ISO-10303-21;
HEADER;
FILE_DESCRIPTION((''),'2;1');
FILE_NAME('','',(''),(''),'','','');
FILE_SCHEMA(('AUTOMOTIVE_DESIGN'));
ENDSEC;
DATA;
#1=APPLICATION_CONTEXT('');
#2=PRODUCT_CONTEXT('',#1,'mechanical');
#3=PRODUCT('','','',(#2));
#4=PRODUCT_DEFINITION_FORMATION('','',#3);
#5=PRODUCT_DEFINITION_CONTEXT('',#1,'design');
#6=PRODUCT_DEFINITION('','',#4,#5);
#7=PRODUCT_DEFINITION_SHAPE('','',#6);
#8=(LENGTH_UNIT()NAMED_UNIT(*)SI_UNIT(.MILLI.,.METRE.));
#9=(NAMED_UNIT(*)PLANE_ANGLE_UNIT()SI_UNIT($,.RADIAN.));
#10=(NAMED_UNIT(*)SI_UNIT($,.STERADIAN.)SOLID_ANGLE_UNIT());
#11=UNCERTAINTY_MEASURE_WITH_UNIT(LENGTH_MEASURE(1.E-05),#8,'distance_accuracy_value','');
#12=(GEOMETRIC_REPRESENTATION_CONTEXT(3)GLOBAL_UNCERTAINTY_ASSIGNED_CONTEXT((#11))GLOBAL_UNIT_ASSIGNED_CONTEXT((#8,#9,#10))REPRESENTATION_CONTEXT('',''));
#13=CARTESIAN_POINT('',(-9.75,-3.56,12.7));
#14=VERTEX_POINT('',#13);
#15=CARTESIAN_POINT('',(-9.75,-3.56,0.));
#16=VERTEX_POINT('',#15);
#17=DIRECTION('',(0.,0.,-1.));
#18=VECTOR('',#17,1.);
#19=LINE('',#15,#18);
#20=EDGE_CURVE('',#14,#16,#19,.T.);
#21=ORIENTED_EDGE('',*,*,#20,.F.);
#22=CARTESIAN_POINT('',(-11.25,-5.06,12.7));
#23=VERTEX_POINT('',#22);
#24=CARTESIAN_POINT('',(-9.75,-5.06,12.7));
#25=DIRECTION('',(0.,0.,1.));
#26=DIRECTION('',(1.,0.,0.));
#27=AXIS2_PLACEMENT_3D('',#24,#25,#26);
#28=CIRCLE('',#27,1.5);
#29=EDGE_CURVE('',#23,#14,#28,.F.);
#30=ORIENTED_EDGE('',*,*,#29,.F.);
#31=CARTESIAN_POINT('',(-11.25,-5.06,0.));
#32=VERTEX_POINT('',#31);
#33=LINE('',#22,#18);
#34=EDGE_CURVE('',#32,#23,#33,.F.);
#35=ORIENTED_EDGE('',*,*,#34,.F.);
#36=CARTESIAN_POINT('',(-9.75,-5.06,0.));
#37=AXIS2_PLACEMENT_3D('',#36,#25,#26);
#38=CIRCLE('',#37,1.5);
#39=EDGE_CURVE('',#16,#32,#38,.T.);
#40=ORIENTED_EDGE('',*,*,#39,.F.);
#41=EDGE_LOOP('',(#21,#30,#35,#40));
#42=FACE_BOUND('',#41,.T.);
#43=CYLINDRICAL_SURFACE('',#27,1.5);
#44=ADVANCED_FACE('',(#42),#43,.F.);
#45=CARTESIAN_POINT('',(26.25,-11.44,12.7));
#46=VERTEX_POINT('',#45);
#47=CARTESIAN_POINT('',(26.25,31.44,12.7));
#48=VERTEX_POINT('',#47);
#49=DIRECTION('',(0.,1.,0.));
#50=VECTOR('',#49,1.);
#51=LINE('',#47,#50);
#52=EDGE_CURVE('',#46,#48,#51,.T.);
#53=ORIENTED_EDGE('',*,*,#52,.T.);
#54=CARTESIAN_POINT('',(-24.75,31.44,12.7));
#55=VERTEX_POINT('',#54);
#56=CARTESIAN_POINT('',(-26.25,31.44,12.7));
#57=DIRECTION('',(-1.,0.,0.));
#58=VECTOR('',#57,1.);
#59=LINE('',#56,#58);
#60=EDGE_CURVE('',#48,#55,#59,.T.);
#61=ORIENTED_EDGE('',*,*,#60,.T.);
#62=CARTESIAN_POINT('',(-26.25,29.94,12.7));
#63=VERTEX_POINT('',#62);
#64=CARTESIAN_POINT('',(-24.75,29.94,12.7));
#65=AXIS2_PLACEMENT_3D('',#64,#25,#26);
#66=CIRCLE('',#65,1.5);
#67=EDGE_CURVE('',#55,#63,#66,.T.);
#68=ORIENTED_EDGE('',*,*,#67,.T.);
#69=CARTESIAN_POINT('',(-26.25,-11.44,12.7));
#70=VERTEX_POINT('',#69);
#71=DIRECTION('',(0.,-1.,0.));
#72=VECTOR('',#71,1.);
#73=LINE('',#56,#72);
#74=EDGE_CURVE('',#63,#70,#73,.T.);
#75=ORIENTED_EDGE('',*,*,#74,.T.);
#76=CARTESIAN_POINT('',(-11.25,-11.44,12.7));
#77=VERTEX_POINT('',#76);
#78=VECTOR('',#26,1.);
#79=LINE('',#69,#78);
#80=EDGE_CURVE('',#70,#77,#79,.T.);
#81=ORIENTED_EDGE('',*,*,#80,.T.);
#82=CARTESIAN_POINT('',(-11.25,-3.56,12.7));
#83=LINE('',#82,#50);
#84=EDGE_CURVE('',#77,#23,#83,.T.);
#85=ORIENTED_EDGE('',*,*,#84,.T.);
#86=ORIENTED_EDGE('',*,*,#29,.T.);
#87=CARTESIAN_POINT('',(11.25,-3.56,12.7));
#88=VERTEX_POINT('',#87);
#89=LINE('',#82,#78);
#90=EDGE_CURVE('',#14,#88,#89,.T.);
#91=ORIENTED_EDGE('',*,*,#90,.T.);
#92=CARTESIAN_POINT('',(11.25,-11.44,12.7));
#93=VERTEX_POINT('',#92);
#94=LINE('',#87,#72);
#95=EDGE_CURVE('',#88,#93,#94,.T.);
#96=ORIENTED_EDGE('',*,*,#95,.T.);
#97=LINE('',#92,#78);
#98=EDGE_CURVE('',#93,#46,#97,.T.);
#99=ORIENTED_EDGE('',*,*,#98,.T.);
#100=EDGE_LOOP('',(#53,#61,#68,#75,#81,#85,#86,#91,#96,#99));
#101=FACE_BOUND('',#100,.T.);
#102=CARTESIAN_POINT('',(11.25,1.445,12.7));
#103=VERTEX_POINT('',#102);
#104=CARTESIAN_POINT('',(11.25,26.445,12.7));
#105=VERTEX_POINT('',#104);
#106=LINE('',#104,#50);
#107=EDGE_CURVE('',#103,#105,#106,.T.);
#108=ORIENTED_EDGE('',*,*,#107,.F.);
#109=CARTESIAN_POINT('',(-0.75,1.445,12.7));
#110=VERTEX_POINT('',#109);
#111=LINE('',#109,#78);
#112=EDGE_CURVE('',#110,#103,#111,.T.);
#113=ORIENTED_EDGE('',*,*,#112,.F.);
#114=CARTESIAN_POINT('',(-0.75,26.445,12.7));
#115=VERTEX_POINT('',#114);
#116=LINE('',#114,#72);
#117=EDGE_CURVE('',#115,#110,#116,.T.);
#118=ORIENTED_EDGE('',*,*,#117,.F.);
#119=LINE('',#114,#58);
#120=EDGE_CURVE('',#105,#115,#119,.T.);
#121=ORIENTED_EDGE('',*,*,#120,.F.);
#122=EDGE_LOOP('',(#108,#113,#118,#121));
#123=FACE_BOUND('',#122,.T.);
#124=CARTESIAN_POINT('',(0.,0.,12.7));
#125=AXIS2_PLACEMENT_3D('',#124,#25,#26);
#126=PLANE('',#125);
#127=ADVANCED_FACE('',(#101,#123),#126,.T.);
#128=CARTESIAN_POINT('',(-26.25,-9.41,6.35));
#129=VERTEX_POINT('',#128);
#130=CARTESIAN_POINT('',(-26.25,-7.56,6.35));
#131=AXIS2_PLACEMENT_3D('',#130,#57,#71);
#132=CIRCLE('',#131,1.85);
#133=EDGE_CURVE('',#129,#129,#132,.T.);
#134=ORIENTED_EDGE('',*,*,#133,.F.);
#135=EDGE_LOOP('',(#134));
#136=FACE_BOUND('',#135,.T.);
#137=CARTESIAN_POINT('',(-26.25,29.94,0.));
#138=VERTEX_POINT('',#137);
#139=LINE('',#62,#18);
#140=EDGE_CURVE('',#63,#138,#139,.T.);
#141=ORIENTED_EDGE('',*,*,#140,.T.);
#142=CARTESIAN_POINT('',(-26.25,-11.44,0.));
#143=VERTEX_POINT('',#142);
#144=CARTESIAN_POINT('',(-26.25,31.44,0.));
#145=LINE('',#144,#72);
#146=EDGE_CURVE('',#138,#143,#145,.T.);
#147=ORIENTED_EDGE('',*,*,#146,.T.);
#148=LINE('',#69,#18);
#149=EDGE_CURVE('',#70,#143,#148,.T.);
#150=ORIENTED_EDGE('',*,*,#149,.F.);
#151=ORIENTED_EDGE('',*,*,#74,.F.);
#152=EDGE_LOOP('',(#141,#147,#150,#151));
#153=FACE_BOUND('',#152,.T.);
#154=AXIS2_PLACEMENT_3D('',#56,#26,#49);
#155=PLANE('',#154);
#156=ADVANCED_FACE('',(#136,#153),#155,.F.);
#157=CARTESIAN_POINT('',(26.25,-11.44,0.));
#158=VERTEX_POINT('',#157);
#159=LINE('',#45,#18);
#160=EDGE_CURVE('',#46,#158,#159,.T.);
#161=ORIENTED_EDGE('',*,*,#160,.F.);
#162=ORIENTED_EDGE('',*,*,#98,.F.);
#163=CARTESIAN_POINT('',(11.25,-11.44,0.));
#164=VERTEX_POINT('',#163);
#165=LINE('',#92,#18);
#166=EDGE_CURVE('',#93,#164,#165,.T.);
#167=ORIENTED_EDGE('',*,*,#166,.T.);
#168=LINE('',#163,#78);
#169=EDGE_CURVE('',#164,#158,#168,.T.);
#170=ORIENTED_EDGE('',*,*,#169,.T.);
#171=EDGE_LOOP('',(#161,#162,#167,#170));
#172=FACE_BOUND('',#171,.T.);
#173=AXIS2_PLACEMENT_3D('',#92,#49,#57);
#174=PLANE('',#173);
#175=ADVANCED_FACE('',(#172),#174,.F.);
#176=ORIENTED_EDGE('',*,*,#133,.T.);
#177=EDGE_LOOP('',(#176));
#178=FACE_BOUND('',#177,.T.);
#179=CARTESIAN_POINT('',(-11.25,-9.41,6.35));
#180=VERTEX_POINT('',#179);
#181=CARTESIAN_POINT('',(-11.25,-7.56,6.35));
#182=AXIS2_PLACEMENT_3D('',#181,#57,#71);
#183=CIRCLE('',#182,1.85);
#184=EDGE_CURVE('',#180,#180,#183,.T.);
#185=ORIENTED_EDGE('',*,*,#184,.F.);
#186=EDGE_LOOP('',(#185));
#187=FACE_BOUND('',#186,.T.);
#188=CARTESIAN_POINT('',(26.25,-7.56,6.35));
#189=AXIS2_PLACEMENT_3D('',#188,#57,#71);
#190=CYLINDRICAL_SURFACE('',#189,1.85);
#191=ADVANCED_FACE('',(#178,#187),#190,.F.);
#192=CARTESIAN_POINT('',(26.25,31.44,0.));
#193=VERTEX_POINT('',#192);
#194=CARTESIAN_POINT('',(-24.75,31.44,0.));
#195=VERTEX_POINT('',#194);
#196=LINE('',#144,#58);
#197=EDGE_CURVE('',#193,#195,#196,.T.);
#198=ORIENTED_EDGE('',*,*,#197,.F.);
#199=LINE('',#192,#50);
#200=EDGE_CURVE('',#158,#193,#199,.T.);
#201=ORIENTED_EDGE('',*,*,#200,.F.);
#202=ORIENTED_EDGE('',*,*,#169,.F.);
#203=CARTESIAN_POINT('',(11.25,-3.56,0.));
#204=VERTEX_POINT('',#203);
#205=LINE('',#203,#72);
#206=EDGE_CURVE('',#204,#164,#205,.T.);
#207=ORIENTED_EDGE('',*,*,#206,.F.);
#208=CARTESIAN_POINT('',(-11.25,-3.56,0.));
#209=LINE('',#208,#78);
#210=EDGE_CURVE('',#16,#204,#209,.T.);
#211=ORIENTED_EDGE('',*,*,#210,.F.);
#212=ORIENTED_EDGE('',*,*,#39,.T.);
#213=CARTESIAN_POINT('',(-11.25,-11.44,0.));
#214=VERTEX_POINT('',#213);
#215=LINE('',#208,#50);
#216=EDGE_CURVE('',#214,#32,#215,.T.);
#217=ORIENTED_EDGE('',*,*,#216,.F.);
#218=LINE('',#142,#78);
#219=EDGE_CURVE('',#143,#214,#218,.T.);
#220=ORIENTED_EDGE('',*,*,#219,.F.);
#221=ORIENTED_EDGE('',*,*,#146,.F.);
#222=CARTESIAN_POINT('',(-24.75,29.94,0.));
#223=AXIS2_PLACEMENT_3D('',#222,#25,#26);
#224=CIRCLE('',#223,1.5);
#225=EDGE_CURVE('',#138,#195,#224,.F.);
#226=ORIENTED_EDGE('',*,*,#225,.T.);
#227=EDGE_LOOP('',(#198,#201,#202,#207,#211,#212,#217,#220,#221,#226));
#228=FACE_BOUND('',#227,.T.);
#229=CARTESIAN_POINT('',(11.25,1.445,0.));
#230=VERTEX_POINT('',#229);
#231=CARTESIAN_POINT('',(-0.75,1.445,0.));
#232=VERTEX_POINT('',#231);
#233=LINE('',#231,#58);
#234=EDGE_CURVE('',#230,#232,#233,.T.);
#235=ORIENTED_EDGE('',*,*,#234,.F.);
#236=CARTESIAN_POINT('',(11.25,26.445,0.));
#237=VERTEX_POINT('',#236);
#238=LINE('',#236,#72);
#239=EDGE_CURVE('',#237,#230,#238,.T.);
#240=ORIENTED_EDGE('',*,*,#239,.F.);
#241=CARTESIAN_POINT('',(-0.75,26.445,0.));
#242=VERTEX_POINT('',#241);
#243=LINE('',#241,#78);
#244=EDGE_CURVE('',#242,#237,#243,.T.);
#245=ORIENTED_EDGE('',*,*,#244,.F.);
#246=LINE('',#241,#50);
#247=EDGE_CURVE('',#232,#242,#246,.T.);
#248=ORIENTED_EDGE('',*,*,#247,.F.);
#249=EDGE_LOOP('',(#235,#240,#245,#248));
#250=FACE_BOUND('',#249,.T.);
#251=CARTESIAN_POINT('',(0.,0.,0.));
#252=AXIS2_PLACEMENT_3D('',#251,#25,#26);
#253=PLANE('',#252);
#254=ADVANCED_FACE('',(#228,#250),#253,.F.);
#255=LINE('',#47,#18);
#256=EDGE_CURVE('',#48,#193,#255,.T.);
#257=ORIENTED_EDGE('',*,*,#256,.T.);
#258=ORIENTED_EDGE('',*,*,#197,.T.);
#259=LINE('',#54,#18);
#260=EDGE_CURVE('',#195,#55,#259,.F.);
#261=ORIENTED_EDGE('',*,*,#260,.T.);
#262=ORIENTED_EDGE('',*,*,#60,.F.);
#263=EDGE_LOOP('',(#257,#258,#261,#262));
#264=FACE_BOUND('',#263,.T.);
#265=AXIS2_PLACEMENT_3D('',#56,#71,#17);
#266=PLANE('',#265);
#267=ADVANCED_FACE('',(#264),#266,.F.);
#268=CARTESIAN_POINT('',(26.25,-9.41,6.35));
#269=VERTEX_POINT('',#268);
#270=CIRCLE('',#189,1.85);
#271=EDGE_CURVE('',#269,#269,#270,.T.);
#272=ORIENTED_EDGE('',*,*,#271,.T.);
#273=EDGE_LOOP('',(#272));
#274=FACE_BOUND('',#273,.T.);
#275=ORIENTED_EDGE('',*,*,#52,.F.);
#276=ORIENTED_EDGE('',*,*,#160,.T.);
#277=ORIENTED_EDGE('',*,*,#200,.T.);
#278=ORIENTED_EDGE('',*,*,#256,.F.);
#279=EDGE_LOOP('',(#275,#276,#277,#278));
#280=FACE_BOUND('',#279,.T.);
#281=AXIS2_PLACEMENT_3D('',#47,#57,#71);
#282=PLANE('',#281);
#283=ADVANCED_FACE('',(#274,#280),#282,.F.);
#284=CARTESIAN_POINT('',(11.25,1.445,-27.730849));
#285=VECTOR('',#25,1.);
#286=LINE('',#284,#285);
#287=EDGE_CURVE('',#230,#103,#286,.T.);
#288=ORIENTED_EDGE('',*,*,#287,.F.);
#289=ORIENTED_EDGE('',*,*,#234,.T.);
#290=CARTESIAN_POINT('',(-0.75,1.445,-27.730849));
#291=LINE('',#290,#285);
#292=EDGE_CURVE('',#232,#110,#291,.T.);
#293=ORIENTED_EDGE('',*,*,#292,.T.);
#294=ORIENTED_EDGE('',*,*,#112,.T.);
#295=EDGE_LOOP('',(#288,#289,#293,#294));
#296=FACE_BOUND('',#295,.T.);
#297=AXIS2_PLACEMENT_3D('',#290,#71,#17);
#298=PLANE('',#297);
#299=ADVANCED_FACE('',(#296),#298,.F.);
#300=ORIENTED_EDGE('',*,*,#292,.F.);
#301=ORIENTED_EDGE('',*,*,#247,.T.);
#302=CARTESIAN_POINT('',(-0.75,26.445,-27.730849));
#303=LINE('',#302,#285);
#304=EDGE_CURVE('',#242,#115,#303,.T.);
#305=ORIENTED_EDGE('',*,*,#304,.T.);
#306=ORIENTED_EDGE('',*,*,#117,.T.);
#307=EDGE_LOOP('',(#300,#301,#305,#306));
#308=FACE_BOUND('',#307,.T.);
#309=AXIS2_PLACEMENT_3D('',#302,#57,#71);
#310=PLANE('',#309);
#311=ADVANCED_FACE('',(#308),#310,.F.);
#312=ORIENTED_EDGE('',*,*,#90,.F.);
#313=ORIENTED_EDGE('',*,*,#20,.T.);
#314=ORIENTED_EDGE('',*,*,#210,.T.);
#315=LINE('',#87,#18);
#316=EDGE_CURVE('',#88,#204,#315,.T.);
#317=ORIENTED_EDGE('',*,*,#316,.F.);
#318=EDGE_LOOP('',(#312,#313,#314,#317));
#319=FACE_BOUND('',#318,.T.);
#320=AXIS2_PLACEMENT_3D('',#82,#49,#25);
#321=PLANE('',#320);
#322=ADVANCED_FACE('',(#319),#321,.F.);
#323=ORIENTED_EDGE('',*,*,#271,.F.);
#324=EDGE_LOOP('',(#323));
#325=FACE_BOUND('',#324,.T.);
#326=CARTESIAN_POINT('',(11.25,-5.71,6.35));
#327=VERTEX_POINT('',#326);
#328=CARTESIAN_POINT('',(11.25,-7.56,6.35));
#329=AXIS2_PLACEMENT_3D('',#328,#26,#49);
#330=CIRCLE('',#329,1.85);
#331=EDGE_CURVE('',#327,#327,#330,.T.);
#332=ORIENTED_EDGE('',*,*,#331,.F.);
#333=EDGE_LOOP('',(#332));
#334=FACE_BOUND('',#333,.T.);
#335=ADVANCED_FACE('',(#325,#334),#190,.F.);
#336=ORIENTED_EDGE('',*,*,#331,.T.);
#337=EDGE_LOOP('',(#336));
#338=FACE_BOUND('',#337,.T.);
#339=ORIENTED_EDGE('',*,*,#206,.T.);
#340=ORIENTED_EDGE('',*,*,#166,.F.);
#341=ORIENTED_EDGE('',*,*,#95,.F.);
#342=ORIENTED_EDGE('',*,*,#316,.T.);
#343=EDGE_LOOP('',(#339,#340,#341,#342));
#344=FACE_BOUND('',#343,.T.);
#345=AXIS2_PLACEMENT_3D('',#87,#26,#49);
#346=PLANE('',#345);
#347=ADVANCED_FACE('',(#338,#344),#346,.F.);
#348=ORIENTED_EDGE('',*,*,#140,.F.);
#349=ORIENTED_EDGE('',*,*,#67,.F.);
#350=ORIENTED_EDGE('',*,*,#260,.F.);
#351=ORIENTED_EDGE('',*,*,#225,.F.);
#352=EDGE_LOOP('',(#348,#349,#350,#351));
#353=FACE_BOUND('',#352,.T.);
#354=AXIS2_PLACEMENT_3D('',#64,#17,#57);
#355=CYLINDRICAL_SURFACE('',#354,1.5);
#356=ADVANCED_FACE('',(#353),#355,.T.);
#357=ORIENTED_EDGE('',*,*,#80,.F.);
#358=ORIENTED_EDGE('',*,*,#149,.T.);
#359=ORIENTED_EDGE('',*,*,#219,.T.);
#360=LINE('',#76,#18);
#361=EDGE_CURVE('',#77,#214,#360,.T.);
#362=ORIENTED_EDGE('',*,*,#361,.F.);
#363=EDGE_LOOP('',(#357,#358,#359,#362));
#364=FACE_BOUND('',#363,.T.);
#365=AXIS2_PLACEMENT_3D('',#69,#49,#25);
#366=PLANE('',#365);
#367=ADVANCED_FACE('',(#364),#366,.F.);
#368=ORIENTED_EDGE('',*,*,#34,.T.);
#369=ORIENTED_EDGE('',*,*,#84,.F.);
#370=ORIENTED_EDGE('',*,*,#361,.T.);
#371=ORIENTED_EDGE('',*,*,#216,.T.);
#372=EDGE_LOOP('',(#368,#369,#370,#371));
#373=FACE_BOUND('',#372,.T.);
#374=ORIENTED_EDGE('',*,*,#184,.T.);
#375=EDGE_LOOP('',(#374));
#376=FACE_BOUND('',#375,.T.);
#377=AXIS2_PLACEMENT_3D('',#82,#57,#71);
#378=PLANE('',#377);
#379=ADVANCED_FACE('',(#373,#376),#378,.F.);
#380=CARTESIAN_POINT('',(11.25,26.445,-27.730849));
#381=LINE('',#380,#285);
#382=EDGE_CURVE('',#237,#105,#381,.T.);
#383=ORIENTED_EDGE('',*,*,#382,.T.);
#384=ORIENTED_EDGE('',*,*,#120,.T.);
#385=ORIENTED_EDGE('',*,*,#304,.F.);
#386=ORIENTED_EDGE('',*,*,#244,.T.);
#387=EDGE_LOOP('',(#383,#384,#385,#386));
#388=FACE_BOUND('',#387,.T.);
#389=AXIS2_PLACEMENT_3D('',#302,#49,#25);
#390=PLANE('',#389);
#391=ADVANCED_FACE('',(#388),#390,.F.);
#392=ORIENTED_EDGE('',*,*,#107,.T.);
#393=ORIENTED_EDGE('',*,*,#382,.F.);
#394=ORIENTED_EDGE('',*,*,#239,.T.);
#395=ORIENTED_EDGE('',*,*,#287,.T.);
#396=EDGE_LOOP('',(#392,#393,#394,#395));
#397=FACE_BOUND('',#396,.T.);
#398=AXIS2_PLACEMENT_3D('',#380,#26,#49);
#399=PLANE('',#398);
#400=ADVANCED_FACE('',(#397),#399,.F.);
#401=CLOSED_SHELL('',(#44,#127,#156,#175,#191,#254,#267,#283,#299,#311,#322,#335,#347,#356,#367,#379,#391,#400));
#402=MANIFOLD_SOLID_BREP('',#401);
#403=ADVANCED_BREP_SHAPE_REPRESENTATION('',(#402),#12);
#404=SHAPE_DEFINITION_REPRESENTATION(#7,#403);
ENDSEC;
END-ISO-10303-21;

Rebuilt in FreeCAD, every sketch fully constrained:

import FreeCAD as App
import Part
import Sketcher

V = App.Vector
Q = App.Units.Quantity


def edges_at(feature, points):
    """Names of the edges that pass closest to the given points."""
    edges = feature.Shape.Edges
    near = lambda p: min(range(len(edges)), key=lambda i: edges[i].distToShape(Part.Vertex(*p))[0])
    return sorted({f"Edge{near(p) + 1}" for p in points})


def add_polygon(sketch, points):
    """Adds a closed chain of lines whose ends are joined by coincident constraints."""
    first, n = sketch.GeometryCount, len(points)
    for a, b in zip(points, points[1:] + points[:1]):
        sketch.addGeometry(Part.LineSegment(App.Vector(*a, 0), App.Vector(*b, 0)), False)
    for i in range(n):
        sketch.addConstraint(Sketcher.Constraint("Coincident", first + i, 2, first + (i + 1) % n, 1))

doc = App.newDocument("Part")
body = doc.addObject("PartDesign::Body", "Body")

sketch1 = body.newObject("Sketcher::SketchObject", "Sketch")
sketch1.AttachmentSupport = (doc.getObject("XY_Plane"), [""])
sketch1.MapMode = "FlatFace"
add_polygon(sketch1, [(11, -11), (26, -11), (26, 31), (-26, 31), (-26, -11), (-11, -11), (-11, -4), (11, -4)])
sketch1.addConstraint([
    Sketcher.Constraint("Horizontal", 0),
    Sketcher.Constraint("Vertical", 1),
    Sketcher.Constraint("Horizontal", 2),
    Sketcher.Constraint("Vertical", 3),
    Sketcher.Constraint("Horizontal", 4),
    Sketcher.Constraint("Vertical", 5),
    Sketcher.Constraint("Horizontal", 6),
    Sketcher.Constraint("Vertical", 7),
    Sketcher.Constraint("Symmetric", 0, 2, 3, 2, -2),
    Sketcher.Constraint("Equal", 0, 4),
    Sketcher.Constraint("DistanceX", 0, 1, 0, 2, Q("15 mm")),
    Sketcher.Constraint("DistanceX", 2, 2, 2, 1, Q("52.5 mm")),
    Sketcher.Constraint("DistanceY", 5, 2, 2, 2, Q("35 mm")),
    Sketcher.Constraint("DistanceY", 1, 1, 1, 2, Q("42.88 mm")),
    Sketcher.Constraint("DistanceY", 0, 2, -1, 1, Q("11.44 mm")),
])
pad1 = body.newObject("PartDesign::Pad", "Pad")
pad1.Profile = sketch1
pad1.Length = 12.7
doc.recompute()

fillet = body.newObject("PartDesign::Fillet", "Fillet")
fillet.Base = (pad1, edges_at(pad1, [(-26.25, 31.44, 6.35)]))
fillet.Radius = 1.5
doc.recompute()

fillet2 = body.newObject("PartDesign::Fillet", "Fillet001")
fillet2.Base = (fillet, edges_at(fillet, [(-11.25, -3.56, 6.35)]))
fillet2.Radius = 1.5

sketch2 = body.newObject("Sketcher::SketchObject", "Sketch001")
sketch2.AttachmentSupport = (doc.getObject("YZ_Plane"), [""])
sketch2.MapMode = "FlatFace"
sketch2.AttachmentOffset = App.Placement(V(0, 0, -26.25), App.Rotation())
sketch2.addGeometry(Part.Circle(V(-7.6, 6.3, 0), V(0, 0, 1), 1.9), False)
sketch2.addConstraint([
    Sketcher.Constraint("Diameter", 0, Q("3.7 mm")),
    Sketcher.Constraint("DistanceX", 0, 3, -1, 1, Q("7.56 mm")),
    Sketcher.Constraint("DistanceY", -1, 1, 0, 3, Q("6.35 mm")),
])
pocket1 = body.newObject("PartDesign::Pocket", "Pocket")
pocket1.Profile = sketch2
pocket1.Type = "ThroughAll"
pocket1.Reversed = True

sketch3 = body.newObject("Sketcher::SketchObject", "Sketch002")
sketch3.AttachmentSupport = (doc.getObject("XY_Plane"), [""])
sketch3.MapMode = "FlatFace"
sketch3.AttachmentOffset = App.Placement(V(0, 0, 12.7), App.Rotation())
add_polygon(sketch3, [(-1, 26), (-1, 1), (11, 1), (11, 26)])
sketch3.addConstraint([
    Sketcher.Constraint("Vertical", 0),
    Sketcher.Constraint("Horizontal", 1),
    Sketcher.Constraint("Vertical", 2),
    Sketcher.Constraint("Horizontal", 3),
    Sketcher.Constraint("DistanceX", 1, 1, 1, 2, Q("12 mm")),
    Sketcher.Constraint("DistanceY", 0, 2, 0, 1, Q("25 mm")),
    Sketcher.Constraint("DistanceX", 0, 2, -1, 1, Q("0.75 mm")),
    Sketcher.Constraint("DistanceY", -1, 1, 0, 2, Q("1.445 mm")),
])
pocket2 = body.newObject("PartDesign::Pocket", "Pocket001")
pocket2.Profile = sketch3
pocket2.Length = 12.7

doc.recompute()
